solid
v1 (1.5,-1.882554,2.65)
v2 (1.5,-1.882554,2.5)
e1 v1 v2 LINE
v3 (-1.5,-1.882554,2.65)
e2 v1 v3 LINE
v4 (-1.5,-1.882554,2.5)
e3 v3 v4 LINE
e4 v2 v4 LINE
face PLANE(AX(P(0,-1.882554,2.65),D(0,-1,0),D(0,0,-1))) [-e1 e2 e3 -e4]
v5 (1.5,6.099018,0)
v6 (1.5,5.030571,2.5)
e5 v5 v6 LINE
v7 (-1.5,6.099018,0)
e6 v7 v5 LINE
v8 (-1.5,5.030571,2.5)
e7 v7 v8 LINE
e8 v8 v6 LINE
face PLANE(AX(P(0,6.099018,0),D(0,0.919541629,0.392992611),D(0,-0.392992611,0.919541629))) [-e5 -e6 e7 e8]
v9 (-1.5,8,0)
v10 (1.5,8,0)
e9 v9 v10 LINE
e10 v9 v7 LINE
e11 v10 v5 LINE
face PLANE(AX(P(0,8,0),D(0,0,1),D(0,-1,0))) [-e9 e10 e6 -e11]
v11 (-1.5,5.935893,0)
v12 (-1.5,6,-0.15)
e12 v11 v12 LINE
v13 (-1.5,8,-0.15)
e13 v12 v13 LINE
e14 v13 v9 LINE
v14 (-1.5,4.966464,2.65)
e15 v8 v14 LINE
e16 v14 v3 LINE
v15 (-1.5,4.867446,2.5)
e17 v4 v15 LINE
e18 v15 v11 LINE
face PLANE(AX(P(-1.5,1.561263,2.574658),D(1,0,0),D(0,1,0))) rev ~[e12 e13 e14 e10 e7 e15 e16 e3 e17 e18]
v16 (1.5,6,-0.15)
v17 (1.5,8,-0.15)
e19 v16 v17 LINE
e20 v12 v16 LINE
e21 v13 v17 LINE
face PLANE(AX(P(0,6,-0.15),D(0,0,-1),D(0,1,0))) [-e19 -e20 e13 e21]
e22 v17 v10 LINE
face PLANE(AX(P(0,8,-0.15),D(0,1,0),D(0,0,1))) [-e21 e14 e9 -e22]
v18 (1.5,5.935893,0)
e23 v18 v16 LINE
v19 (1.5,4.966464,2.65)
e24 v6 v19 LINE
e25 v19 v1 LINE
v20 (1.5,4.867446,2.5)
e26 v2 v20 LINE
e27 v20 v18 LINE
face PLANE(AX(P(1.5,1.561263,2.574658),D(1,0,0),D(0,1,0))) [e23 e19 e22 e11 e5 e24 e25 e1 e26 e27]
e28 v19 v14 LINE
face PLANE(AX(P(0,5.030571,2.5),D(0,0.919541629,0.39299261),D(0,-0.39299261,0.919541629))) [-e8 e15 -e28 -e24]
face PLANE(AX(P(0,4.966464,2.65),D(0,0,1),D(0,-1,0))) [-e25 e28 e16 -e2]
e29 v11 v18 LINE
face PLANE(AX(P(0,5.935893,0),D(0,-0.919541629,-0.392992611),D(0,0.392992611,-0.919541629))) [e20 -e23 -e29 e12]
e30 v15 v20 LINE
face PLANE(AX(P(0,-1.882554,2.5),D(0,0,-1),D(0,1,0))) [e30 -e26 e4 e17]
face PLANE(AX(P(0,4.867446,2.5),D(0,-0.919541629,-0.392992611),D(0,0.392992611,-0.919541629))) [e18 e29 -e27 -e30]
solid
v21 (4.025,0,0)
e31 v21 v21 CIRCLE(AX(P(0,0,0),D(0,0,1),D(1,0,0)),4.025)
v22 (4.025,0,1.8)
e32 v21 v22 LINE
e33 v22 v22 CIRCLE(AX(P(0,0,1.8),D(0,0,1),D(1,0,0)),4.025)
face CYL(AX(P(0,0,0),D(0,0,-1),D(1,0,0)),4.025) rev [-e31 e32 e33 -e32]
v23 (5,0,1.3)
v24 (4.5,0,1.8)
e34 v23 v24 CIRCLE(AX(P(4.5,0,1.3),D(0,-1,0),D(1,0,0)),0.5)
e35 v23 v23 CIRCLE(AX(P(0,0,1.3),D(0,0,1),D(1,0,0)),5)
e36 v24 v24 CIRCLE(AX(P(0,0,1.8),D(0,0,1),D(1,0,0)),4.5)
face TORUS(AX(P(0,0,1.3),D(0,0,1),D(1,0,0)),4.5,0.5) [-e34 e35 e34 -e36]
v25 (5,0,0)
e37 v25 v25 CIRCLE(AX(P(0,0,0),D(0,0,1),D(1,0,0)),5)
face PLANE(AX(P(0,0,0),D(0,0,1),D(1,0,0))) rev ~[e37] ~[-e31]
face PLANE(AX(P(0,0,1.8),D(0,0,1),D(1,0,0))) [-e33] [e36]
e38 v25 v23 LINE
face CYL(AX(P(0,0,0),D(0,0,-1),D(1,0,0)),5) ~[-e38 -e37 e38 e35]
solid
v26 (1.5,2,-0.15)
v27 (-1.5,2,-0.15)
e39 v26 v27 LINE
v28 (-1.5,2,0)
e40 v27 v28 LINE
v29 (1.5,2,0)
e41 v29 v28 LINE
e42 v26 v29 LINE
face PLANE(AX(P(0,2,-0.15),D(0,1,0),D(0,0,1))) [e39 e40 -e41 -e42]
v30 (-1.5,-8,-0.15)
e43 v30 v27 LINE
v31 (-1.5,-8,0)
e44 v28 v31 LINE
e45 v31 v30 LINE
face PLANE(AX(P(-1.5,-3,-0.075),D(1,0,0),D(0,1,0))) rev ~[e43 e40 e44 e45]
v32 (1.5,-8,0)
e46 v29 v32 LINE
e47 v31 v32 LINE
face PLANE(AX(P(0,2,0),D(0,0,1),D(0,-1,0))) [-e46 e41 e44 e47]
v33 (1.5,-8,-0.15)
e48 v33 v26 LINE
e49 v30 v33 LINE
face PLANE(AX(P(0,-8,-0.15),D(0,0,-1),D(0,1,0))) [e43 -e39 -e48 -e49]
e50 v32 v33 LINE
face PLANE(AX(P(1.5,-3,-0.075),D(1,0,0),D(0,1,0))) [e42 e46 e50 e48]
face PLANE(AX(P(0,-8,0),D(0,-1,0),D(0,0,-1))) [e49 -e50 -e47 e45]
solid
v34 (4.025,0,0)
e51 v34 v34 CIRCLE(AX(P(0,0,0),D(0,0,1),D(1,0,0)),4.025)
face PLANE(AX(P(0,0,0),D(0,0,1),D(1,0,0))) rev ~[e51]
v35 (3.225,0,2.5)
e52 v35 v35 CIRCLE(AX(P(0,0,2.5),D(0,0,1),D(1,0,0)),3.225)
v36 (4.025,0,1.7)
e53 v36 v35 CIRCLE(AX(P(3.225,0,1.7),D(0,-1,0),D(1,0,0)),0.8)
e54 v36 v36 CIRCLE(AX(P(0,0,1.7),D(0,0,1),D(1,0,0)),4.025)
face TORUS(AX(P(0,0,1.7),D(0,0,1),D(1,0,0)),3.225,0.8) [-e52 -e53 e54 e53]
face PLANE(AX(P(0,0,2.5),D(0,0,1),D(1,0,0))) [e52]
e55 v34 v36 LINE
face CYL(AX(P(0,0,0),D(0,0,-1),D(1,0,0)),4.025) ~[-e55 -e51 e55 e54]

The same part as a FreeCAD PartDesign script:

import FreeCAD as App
import Part
import Sketcher
Q = App.Units.Quantity


def edges_at(feature, points):
    """Names of the edges that pass closest to the given points."""
    edges = feature.Shape.Edges
    near = lambda p: min(range(len(edges)), key=lambda i: edges[i].distToShape(Part.Vertex(*p))[0])
    return sorted({f"Edge{near(p) + 1}" for p in points})


def add_polygon(sketch, points):
    """Adds a closed chain of lines whose ends are joined by coincident constraints."""
    first, n = sketch.GeometryCount, len(points)
    for a, b in zip(points, points[1:] + points[:1]):
        sketch.addGeometry(Part.LineSegment(App.Vector(*a, 0), App.Vector(*b, 0)), False)
    for i in range(n):
        sketch.addConstraint(Sketcher.Constraint("Coincident", first + i, 2, first + (i + 1) % n, 1))

doc = App.newDocument("Part")
body = doc.addObject("PartDesign::Body", "Body")

# Sketch on XY plane
sketch1 = doc.addObject("Sketcher::SketchObject", "Sketch")
body.addObject(sketch1)
sketch1.AttachmentSupport = (doc.XY_Plane, [""])
sketch1.MapMode = "FlatFace"
sketch1.addGeometry(Part.Circle(App.Vector(0, 0, 0), App.Vector(0, 0, 1), 4), False)
sketch1.addConstraint(Sketcher.Constraint("Coincident", 0, 3, -1, 1))
sketch1.addConstraint(Sketcher.Constraint("Diameter", 0, Q("8.05 mm")))
pad1 = doc.addObject("PartDesign::Pad", "Pad")
body.addObject(pad1)
pad1.Profile = sketch1
pad1.Length = 2.5
doc.recompute()

fillet = doc.addObject("PartDesign::Fillet", "Fillet")
body.addObject(fillet)
fillet.Base = (pad1, edges_at(pad1, [(-4.025, 0, 2.5)]))
fillet.Radius = 0.8
body2 = doc.addObject("PartDesign::Body", "Body001")

# Sketch on XY plane
sketch2 = doc.addObject("Sketcher::SketchObject", "Sketch001")
body2.addObject(sketch2)
sketch2.AttachmentSupport = (doc.getObject("XY_Plane001"), [""])
sketch2.MapMode = "FlatFace"
sketch2.addGeometry(Part.Circle(App.Vector(0, 0, 0), App.Vector(0, 0, 1), 5), False)
sketch2.addGeometry(Part.Circle(App.Vector(0, 0, 0), App.Vector(0, 0, 1), 4), False)
sketch2.addConstraint(Sketcher.Constraint("Coincident", 0, 3, -1, 1))
sketch2.addConstraint(Sketcher.Constraint("Coincident", 1, 3, -1, 1))
sketch2.addConstraint(Sketcher.Constraint("Diameter", 0, Q("10 mm")))
sketch2.addConstraint(Sketcher.Constraint("Diameter", 1, Q("8.05 mm")))
pad2 = doc.addObject("PartDesign::Pad", "Pad001")
body2.addObject(pad2)
pad2.Profile = sketch2
pad2.Length = 1.8
doc.recompute()

fillet2 = doc.addObject("PartDesign::Fillet", "Fillet001")
body2.addObject(fillet2)
fillet2.Base = (pad2, edges_at(pad2, [(-5, 0, 1.8)]))
fillet2.Radius = 0.5
body3 = doc.addObject("PartDesign::Body", "Body002")

# Sketch on YZ plane
sketch3 = doc.addObject("Sketcher::SketchObject", "Sketch002")
body3.addObject(sketch3)
sketch3.AttachmentSupport = (doc.getObject("YZ_Plane002"), [""])
sketch3.MapMode = "FlatFace"
add_polygon(sketch3, [(-1.88, 2.5), (4.87, 2.5), (5.94, 0), (6, -0.15), (8, -0.15), (8, 0), (6.1, 0), (5.03, 2.5), (4.97, 2.65), (-1.88, 2.65)])  # lines 0-9
sketch3.addConstraint(Sketcher.Constraint("Horizontal", 0))
sketch3.addConstraint(Sketcher.Constraint("Horizontal", 3))
sketch3.addConstraint(Sketcher.Constraint("Vertical", 4))
sketch3.addConstraint(Sketcher.Constraint("Horizontal", 5))
sketch3.addConstraint(Sketcher.Constraint("Horizontal", 8))
sketch3.addConstraint(Sketcher.Constraint("Vertical", 9))
sketch3.addConstraint(Sketcher.Constraint("PointOnObject", 1, 2, -1))
sketch3.addConstraint(Sketcher.Constraint("PointOnObject", 4, 2, -1))
sketch3.addConstraint(Sketcher.Constraint("Parallel", 1, 2))
sketch3.addConstraint(Sketcher.Constraint("Parallel", 2, 6))
sketch3.addConstraint(Sketcher.Constraint("Parallel", 6, 7))
sketch3.addConstraint(Sketcher.Constraint("Horizontal", 0, 2, 6, 2))
sketch3.addConstraint(Sketcher.Constraint("Equal", 4, 9))
sketch3.addConstraint(Sketcher.Constraint("DistanceX", 3, 1, 3, 2, Q("2 mm")))
sketch3.addConstraint(Sketcher.Constraint("DistanceX", -1, 1, 2, 2, Q("6 mm")))
sketch3.addConstraint(Sketcher.Constraint("DistanceX", 0, 1, 0, 2, Q("6.75 mm")))
sketch3.addConstraint(Sketcher.Constraint("DistanceY", 4, 1, 4, 2, Q("0.15 mm")))
sketch3.addConstraint(Sketcher.Constraint("DistanceY", -1, 1, 0, 2, Q("2.5 mm")))
sketch3.addConstraint(Sketcher.Constraint("DistanceX", 5, 2, 5, 1, Q("1.900982 mm")))
sketch3.addConstraint(Sketcher.Constraint("DistanceX", -1, 1, 6, 2, Q("5.030571 mm")))
pad3 = doc.addObject("PartDesign::Pad", "Pad002")
body3.addObject(pad3)
pad3.Profile = sketch3
pad3.Length = 3
pad3.Midplane = True
body4 = doc.addObject("PartDesign::Body", "Body003")

# Sketch on YZ plane
sketch4 = doc.addObject("Sketcher::SketchObject", "Sketch003")
body4.addObject(sketch4)
sketch4.AttachmentSupport = (doc.getObject("YZ_Plane003"), [""])
sketch4.MapMode = "FlatFace"
add_polygon(sketch4, [(2, 0), (-8, 0), (-8, -0.15), (2, -0.15)])  # lines 0-3
sketch4.addConstraint(Sketcher.Constraint("Horizontal", 0))
sketch4.addConstraint(Sketcher.Constraint("Vertical", 1))
sketch4.addConstraint(Sketcher.Constraint("Horizontal", 2))
sketch4.addConstraint(Sketcher.Constraint("Vertical", 3))
sketch4.addConstraint(Sketcher.Constraint("PointOnObject", 0, 2, -1))
sketch4.addConstraint(Sketcher.Constraint("DistanceX", 0, 2, 0, 1, Q("10 mm")))
sketch4.addConstraint(Sketcher.Constraint("DistanceX", 0, 2, -1, 1, Q("8 mm")))
sketch4.addConstraint(Sketcher.Constraint("DistanceY", 1, 2, 1, 1, Q("0.15 mm")))
pad4 = doc.addObject("PartDesign::Pad", "Pad003")
body4.addObject(pad4)
pad4.Profile = sketch4
pad4.Length = 3
pad4.Midplane = True

doc.recompute()
